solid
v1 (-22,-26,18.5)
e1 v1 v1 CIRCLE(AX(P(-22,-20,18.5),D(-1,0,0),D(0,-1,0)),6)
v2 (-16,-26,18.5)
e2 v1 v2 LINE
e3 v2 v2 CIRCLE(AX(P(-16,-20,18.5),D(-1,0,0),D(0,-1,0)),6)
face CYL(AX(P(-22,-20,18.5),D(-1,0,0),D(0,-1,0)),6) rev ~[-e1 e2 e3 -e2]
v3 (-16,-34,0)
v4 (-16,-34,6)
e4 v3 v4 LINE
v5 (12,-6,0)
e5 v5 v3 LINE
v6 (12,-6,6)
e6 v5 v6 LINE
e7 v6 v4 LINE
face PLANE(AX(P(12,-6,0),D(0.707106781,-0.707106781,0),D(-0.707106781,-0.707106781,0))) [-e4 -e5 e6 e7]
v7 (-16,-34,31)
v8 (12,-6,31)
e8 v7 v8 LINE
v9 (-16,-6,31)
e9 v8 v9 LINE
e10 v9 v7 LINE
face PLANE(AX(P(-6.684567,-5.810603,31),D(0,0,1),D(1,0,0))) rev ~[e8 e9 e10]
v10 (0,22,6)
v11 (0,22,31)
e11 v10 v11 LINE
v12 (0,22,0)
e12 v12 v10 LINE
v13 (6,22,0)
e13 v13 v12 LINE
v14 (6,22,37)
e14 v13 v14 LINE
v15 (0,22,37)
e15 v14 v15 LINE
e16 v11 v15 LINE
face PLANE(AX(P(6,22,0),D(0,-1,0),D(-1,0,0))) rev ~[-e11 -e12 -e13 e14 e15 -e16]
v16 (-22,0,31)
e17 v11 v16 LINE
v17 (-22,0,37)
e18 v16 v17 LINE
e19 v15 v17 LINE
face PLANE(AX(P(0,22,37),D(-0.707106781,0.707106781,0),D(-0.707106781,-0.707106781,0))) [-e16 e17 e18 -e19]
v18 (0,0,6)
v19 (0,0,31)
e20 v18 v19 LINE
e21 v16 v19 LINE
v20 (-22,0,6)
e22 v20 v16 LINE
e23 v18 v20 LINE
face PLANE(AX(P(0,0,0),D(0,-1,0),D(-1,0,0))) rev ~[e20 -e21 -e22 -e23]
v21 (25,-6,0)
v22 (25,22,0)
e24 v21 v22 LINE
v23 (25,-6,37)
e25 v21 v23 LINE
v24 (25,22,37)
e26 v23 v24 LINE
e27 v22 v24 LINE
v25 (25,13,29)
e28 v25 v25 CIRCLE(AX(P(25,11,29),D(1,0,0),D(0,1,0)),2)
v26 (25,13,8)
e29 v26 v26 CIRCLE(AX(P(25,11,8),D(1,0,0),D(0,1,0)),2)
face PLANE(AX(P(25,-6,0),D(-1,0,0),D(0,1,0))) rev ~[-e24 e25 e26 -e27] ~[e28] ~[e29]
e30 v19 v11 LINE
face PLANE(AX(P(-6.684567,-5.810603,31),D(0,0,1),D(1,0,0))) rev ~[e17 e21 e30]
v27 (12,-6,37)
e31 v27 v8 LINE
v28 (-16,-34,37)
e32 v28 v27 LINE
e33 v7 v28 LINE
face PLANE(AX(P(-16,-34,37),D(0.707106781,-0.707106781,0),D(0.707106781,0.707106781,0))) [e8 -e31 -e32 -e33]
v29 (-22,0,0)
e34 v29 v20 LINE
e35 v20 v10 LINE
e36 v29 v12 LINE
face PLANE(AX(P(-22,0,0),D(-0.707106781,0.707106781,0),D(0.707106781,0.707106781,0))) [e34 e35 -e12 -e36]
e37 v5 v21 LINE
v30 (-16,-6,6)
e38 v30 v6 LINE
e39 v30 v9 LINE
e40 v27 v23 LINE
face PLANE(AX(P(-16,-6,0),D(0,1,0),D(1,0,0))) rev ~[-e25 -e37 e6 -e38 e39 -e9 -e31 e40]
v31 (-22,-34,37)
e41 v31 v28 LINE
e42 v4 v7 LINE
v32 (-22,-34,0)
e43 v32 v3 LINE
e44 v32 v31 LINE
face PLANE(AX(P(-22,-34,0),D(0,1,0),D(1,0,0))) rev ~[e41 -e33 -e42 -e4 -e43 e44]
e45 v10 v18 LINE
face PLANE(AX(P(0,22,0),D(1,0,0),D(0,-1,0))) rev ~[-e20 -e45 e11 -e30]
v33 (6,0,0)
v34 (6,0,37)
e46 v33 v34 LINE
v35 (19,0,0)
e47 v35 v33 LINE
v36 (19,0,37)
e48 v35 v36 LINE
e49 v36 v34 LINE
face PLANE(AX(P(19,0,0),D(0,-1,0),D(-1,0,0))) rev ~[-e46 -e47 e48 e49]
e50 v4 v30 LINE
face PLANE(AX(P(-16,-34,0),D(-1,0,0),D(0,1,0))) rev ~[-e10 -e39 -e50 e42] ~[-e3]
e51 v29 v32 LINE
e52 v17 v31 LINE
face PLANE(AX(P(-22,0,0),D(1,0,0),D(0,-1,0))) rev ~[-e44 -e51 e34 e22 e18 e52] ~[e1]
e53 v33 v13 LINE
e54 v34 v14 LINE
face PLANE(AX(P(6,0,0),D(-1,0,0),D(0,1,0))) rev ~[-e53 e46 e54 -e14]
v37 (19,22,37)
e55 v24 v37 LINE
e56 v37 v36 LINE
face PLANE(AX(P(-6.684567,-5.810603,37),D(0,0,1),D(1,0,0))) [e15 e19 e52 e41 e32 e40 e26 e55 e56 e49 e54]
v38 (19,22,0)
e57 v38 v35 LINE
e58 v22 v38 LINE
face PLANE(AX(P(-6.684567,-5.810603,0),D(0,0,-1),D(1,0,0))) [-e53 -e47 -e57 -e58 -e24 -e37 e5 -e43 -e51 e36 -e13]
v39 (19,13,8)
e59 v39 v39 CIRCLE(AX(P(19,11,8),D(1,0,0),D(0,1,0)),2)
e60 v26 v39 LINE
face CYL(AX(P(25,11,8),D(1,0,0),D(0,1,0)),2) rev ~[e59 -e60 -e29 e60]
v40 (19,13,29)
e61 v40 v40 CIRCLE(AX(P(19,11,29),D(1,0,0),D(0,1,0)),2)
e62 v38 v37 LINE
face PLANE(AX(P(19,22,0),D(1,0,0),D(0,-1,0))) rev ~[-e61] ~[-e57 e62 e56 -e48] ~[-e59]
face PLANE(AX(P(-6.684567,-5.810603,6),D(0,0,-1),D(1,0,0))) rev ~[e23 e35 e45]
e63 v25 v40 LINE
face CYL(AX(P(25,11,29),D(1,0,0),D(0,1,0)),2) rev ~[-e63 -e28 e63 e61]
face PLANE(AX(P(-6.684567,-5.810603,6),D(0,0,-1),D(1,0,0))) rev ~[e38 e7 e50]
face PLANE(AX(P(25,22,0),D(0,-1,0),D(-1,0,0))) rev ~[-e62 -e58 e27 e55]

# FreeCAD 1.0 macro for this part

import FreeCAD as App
import Part
import Sketcher

V = App.Vector

doc = App.newDocument("Part")
body = doc.addObject("PartDesign::Body", "Body")

# Sketch on XY plane
sketch1 = body.newObject("Sketcher::SketchObject", "Sketch")
sketch1.AttachmentSupport = (doc.getObject("XY_Plane"), [""])
sketch1.MapMode = "FlatFace"
sketch1.addGeometry([
    Part.LineSegment(V(0, 0, 0), V(-22, 0, 0)),  # 0
    Part.LineSegment(V(-22, 0, 0), V(-22, -34, 0)),  # 1
    Part.LineSegment(V(-22, -34, 0), V(-16, -34, 0)),  # 2
    Part.LineSegment(V(-16, -34, 0), V(-16, -6, 0)),  # 3
    Part.LineSegment(V(-16, -6, 0), V(25, -6, 0)),  # 4
    Part.LineSegment(V(25, -6, 0), V(25, 22, 0)),  # 5
    Part.LineSegment(V(25, 22, 0), V(19, 22, 0)),  # 6
    Part.LineSegment(V(19, 22, 0), V(19, 0, 0)),  # 7
    Part.LineSegment(V(19, 0, 0), V(6, 0, 0)),  # 8
    Part.LineSegment(V(6, 0, 0), V(6, 22, 0)),  # 9
    Part.LineSegment(V(6, 22, 0), V(0, 22, 0)),  # 10
    Part.LineSegment(V(0, 22, 0), V(0, 0, 0)),  # 11
], False)
sketch1.addConstraint([
    Sketcher.Constraint("Coincident", 0, 2, 1, 1),
    Sketcher.Constraint("Coincident", 1, 2, 2, 1),
    Sketcher.Constraint("Coincident", 2, 2, 3, 1),
    Sketcher.Constraint("Coincident", 3, 2, 4, 1),
    Sketcher.Constraint("Coincident", 4, 2, 5, 1),
    Sketcher.Constraint("Coincident", 5, 2, 6, 1),
    Sketcher.Constraint("Coincident", 6, 2, 7, 1),
    Sketcher.Constraint("Coincident", 7, 2, 8, 1),
    Sketcher.Constraint("Coincident", 8, 2, 9, 1),
    Sketcher.Constraint("Coincident", 9, 2, 10, 1),
    Sketcher.Constraint("Coincident", 10, 2, 11, 1),
    Sketcher.Constraint("Coincident", 11, 2, 0, 1),
    Sketcher.Constraint("Horizontal", 0),
    Sketcher.Constraint("Vertical", 1),
    Sketcher.Constraint("Horizontal", 2),
    Sketcher.Constraint("Vertical", 3),
    Sketcher.Constraint("Horizontal", 4),
    Sketcher.Constraint("Vertical", 5),
    Sketcher.Constraint("Horizontal", 6),
    Sketcher.Constraint("Vertical", 7),
    Sketcher.Constraint("Horizontal", 8),
    Sketcher.Constraint("Vertical", 9),
    Sketcher.Constraint("Horizontal", 10),
    Sketcher.Constraint("Vertical", 11),
    Sketcher.Constraint("Coincident", 11, 2, -1, 1),
    Sketcher.Constraint("PointOnObject", 7, 2, -1),
    Sketcher.Constraint("Horizontal", 6, 2, 9, 2),
    Sketcher.Constraint("Equal", 2, 6),
    Sketcher.Constraint("Equal", 6, 10),
    Sketcher.Constraint("Equal", 3, 5),
    Sketcher.Constraint("Equal", 0, 7),
    Sketcher.Constraint("DistanceX", 0, 2, 0, 1, 22.0),
    Sketcher.Constraint("DistanceX", 2, 1, 2, 2, 6.0),
    Sketcher.Constraint("DistanceX", 4, 1, 4, 2, 41.0),
    Sketcher.Constraint("DistanceY", 1, 2, 1, 1, 34.0),
])
pad1 = body.newObject("PartDesign::Pad", "Pad")
pad1.Profile = sketch1
pad1.Length = 37

# Sketch on XY plane
sketch2 = body.newObject("Sketcher::SketchObject", "Sketch001")
sketch2.AttachmentSupport = (doc.getObject("XY_Plane"), [""])
sketch2.MapMode = "FlatFace"
sketch2.AttachmentOffset = App.Placement(V(0, 0, 37), App.Rotation())
sketch2.addGeometry([
    Part.LineSegment(V(-16, -34, 0), V(12, -6, 0)),  # 0
    Part.LineSegment(V(12, -6, 0), V(0, -6, 0)),  # 1
    Part.LineSegment(V(0, -6, 0), V(0, 22, 0)),  # 2
    Part.LineSegment(V(0, 22, 0), V(-22, 0, 0)),  # 3
    Part.LineSegment(V(-22, 0, 0), V(-16, 0, 0)),  # 4
    Part.LineSegment(V(-16, 0, 0), V(-16, -34, 0)),  # 5
], False)
sketch2.addConstraint([
    Sketcher.Constraint("Coincident", 0, 2, 1, 1),
    Sketcher.Constraint("Coincident", 1, 2, 2, 1),
    Sketcher.Constraint("Coincident", 2, 2, 3, 1),
    Sketcher.Constraint("Coincident", 3, 2, 4, 1),
    Sketcher.Constraint("Coincident", 4, 2, 5, 1),
    Sketcher.Constraint("Coincident", 5, 2, 0, 1),
    Sketcher.Constraint("Horizontal", 1),
    Sketcher.Constraint("Vertical", 2),
    Sketcher.Constraint("Horizontal", 4),
    Sketcher.Constraint("Vertical", 5),
    Sketcher.Constraint("PointOnObject", 1, 2, -2),
    Sketcher.Constraint("PointOnObject", 3, 2, -1),
    Sketcher.Constraint("Parallel", 0, 3),
    Sketcher.Constraint("DistanceX", 1, 2, 1, 1, 12.0),
    Sketcher.Constraint("DistanceX", 4, 1, 4, 2, 6.0),
    Sketcher.Constraint("DistanceY", 2, 1, 2, 2, 28.0),
    Sketcher.Constraint("DistanceY", 5, 2, 5, 1, 34.0),
    Sketcher.Constraint("DistanceY", 0, 2, -1, 1, 6.0),
])
pad2 = body.newObject("PartDesign::Pad", "Pad001")
pad2.Profile = sketch2
pad2.Length = 6
pad2.Reversed = True

# Sketch on XY plane
sketch3 = body.newObject("Sketcher::SketchObject", "Sketch002")
sketch3.AttachmentSupport = (doc.getObject("XY_Plane"), [""])
sketch3.MapMode = "FlatFace"
sketch3.addGeometry([
    Part.LineSegment(V(-16, -34, 0), V(-16, 0, 0)),  # 0
    Part.LineSegment(V(-16, 0, 0), V(-22, 0, 0)),  # 1
    Part.LineSegment(V(-22, 0, 0), V(0, 22, 0)),  # 2
    Part.LineSegment(V(0, 22, 0), V(0, -6, 0)),  # 3
    Part.LineSegment(V(0, -6, 0), V(12, -6, 0)),  # 4
    Part.LineSegment(V(12, -6, 0), V(-16, -34, 0)),  # 5
], False)
sketch3.addConstraint([
    Sketcher.Constraint("Coincident", 0, 2, 1, 1),
    Sketcher.Constraint("Coincident", 1, 2, 2, 1),
    Sketcher.Constraint("Coincident", 2, 2, 3, 1),
    Sketcher.Constraint("Coincident", 3, 2, 4, 1),
    Sketcher.Constraint("Coincident", 4, 2, 5, 1),
    Sketcher.Constraint("Coincident", 5, 2, 0, 1),
    Sketcher.Constraint("Vertical", 0),
    Sketcher.Constraint("Horizontal", 1),
    Sketcher.Constraint("Vertical", 3),
    Sketcher.Constraint("Horizontal", 4),
    Sketcher.Constraint("PointOnObject", 0, 2, -1),
    Sketcher.Constraint("PointOnObject", 2, 2, -2),
    Sketcher.Constraint("Parallel", 2, 5),
    Sketcher.Constraint("DistanceX", 1, 2, 1, 1, 6.0),
    Sketcher.Constraint("DistanceX", 4, 1, 4, 2, 12.0),
    Sketcher.Constraint("DistanceY", 0, 1, 0, 2, 34.0),
    Sketcher.Constraint("DistanceY", 3, 2, 3, 1, 28.0),
    Sketcher.Constraint("DistanceX", 0, 2, -1, 1, 16.0),
])
pad3 = body.newObject("PartDesign::Pad", "Pad002")
pad3.Profile = sketch3
pad3.Length = 6

# Sketch on YZ plane
sketch4 = body.newObject("Sketcher::SketchObject", "Sketch003")
sketch4.AttachmentSupport = (doc.getObject("YZ_Plane"), [""])
sketch4.MapMode = "FlatFace"
sketch4.AttachmentOffset = App.Placement(V(0, 0, -22), App.Rotation())
sketch4.addGeometry(Part.Circle(V(-20, 18.5, 0), V(0, 0, 1), 6), False)
sketch4.addConstraint([
    Sketcher.Constraint("Diameter", 0, 12.0),
    Sketcher.Constraint("DistanceX", 0, 3, -1, 1, 20.0),
    Sketcher.Constraint("DistanceY", -1, 1, 0, 3, 18.5),
])
pocket1 = body.newObject("PartDesign::Pocket", "Pocket")
pocket1.Profile = sketch4
pocket1.Type = "ThroughAll"
pocket1.Reversed = True

# Sketch on YZ plane
sketch5 = body.newObject("Sketcher::SketchObject", "Sketch004")
sketch5.AttachmentSupport = (doc.getObject("YZ_Plane"), [""])
sketch5.MapMode = "FlatFace"
sketch5.AttachmentOffset = App.Placement(V(0, 0, 25), App.Rotation())
sketch5.addGeometry([
    Part.Circle(V(11, 29, 0), V(0, 0, 1), 2),
    Part.Circle(V(11, 8, 0), V(0, 0, 1), 2),
], False)
sketch5.addConstraint([
    Sketcher.Constraint("Equal", 0, 1),
    Sketcher.Constraint("Vertical", 0, 3, 1, 3),
    Sketcher.Constraint("Diameter", 0, 4.0),
    Sketcher.Constraint("DistanceX", -1, 1, 0, 3, 11.0),
    Sketcher.Constraint("DistanceY", -1, 1, 0, 3, 29.0),
    Sketcher.Constraint("DistanceY", -1, 1, 1, 3, 8.0),
])
pocket2 = body.newObject("PartDesign::Pocket", "Pocket001")
pocket2.Profile = sketch5
pocket2.Length = 6

doc.recompute()
